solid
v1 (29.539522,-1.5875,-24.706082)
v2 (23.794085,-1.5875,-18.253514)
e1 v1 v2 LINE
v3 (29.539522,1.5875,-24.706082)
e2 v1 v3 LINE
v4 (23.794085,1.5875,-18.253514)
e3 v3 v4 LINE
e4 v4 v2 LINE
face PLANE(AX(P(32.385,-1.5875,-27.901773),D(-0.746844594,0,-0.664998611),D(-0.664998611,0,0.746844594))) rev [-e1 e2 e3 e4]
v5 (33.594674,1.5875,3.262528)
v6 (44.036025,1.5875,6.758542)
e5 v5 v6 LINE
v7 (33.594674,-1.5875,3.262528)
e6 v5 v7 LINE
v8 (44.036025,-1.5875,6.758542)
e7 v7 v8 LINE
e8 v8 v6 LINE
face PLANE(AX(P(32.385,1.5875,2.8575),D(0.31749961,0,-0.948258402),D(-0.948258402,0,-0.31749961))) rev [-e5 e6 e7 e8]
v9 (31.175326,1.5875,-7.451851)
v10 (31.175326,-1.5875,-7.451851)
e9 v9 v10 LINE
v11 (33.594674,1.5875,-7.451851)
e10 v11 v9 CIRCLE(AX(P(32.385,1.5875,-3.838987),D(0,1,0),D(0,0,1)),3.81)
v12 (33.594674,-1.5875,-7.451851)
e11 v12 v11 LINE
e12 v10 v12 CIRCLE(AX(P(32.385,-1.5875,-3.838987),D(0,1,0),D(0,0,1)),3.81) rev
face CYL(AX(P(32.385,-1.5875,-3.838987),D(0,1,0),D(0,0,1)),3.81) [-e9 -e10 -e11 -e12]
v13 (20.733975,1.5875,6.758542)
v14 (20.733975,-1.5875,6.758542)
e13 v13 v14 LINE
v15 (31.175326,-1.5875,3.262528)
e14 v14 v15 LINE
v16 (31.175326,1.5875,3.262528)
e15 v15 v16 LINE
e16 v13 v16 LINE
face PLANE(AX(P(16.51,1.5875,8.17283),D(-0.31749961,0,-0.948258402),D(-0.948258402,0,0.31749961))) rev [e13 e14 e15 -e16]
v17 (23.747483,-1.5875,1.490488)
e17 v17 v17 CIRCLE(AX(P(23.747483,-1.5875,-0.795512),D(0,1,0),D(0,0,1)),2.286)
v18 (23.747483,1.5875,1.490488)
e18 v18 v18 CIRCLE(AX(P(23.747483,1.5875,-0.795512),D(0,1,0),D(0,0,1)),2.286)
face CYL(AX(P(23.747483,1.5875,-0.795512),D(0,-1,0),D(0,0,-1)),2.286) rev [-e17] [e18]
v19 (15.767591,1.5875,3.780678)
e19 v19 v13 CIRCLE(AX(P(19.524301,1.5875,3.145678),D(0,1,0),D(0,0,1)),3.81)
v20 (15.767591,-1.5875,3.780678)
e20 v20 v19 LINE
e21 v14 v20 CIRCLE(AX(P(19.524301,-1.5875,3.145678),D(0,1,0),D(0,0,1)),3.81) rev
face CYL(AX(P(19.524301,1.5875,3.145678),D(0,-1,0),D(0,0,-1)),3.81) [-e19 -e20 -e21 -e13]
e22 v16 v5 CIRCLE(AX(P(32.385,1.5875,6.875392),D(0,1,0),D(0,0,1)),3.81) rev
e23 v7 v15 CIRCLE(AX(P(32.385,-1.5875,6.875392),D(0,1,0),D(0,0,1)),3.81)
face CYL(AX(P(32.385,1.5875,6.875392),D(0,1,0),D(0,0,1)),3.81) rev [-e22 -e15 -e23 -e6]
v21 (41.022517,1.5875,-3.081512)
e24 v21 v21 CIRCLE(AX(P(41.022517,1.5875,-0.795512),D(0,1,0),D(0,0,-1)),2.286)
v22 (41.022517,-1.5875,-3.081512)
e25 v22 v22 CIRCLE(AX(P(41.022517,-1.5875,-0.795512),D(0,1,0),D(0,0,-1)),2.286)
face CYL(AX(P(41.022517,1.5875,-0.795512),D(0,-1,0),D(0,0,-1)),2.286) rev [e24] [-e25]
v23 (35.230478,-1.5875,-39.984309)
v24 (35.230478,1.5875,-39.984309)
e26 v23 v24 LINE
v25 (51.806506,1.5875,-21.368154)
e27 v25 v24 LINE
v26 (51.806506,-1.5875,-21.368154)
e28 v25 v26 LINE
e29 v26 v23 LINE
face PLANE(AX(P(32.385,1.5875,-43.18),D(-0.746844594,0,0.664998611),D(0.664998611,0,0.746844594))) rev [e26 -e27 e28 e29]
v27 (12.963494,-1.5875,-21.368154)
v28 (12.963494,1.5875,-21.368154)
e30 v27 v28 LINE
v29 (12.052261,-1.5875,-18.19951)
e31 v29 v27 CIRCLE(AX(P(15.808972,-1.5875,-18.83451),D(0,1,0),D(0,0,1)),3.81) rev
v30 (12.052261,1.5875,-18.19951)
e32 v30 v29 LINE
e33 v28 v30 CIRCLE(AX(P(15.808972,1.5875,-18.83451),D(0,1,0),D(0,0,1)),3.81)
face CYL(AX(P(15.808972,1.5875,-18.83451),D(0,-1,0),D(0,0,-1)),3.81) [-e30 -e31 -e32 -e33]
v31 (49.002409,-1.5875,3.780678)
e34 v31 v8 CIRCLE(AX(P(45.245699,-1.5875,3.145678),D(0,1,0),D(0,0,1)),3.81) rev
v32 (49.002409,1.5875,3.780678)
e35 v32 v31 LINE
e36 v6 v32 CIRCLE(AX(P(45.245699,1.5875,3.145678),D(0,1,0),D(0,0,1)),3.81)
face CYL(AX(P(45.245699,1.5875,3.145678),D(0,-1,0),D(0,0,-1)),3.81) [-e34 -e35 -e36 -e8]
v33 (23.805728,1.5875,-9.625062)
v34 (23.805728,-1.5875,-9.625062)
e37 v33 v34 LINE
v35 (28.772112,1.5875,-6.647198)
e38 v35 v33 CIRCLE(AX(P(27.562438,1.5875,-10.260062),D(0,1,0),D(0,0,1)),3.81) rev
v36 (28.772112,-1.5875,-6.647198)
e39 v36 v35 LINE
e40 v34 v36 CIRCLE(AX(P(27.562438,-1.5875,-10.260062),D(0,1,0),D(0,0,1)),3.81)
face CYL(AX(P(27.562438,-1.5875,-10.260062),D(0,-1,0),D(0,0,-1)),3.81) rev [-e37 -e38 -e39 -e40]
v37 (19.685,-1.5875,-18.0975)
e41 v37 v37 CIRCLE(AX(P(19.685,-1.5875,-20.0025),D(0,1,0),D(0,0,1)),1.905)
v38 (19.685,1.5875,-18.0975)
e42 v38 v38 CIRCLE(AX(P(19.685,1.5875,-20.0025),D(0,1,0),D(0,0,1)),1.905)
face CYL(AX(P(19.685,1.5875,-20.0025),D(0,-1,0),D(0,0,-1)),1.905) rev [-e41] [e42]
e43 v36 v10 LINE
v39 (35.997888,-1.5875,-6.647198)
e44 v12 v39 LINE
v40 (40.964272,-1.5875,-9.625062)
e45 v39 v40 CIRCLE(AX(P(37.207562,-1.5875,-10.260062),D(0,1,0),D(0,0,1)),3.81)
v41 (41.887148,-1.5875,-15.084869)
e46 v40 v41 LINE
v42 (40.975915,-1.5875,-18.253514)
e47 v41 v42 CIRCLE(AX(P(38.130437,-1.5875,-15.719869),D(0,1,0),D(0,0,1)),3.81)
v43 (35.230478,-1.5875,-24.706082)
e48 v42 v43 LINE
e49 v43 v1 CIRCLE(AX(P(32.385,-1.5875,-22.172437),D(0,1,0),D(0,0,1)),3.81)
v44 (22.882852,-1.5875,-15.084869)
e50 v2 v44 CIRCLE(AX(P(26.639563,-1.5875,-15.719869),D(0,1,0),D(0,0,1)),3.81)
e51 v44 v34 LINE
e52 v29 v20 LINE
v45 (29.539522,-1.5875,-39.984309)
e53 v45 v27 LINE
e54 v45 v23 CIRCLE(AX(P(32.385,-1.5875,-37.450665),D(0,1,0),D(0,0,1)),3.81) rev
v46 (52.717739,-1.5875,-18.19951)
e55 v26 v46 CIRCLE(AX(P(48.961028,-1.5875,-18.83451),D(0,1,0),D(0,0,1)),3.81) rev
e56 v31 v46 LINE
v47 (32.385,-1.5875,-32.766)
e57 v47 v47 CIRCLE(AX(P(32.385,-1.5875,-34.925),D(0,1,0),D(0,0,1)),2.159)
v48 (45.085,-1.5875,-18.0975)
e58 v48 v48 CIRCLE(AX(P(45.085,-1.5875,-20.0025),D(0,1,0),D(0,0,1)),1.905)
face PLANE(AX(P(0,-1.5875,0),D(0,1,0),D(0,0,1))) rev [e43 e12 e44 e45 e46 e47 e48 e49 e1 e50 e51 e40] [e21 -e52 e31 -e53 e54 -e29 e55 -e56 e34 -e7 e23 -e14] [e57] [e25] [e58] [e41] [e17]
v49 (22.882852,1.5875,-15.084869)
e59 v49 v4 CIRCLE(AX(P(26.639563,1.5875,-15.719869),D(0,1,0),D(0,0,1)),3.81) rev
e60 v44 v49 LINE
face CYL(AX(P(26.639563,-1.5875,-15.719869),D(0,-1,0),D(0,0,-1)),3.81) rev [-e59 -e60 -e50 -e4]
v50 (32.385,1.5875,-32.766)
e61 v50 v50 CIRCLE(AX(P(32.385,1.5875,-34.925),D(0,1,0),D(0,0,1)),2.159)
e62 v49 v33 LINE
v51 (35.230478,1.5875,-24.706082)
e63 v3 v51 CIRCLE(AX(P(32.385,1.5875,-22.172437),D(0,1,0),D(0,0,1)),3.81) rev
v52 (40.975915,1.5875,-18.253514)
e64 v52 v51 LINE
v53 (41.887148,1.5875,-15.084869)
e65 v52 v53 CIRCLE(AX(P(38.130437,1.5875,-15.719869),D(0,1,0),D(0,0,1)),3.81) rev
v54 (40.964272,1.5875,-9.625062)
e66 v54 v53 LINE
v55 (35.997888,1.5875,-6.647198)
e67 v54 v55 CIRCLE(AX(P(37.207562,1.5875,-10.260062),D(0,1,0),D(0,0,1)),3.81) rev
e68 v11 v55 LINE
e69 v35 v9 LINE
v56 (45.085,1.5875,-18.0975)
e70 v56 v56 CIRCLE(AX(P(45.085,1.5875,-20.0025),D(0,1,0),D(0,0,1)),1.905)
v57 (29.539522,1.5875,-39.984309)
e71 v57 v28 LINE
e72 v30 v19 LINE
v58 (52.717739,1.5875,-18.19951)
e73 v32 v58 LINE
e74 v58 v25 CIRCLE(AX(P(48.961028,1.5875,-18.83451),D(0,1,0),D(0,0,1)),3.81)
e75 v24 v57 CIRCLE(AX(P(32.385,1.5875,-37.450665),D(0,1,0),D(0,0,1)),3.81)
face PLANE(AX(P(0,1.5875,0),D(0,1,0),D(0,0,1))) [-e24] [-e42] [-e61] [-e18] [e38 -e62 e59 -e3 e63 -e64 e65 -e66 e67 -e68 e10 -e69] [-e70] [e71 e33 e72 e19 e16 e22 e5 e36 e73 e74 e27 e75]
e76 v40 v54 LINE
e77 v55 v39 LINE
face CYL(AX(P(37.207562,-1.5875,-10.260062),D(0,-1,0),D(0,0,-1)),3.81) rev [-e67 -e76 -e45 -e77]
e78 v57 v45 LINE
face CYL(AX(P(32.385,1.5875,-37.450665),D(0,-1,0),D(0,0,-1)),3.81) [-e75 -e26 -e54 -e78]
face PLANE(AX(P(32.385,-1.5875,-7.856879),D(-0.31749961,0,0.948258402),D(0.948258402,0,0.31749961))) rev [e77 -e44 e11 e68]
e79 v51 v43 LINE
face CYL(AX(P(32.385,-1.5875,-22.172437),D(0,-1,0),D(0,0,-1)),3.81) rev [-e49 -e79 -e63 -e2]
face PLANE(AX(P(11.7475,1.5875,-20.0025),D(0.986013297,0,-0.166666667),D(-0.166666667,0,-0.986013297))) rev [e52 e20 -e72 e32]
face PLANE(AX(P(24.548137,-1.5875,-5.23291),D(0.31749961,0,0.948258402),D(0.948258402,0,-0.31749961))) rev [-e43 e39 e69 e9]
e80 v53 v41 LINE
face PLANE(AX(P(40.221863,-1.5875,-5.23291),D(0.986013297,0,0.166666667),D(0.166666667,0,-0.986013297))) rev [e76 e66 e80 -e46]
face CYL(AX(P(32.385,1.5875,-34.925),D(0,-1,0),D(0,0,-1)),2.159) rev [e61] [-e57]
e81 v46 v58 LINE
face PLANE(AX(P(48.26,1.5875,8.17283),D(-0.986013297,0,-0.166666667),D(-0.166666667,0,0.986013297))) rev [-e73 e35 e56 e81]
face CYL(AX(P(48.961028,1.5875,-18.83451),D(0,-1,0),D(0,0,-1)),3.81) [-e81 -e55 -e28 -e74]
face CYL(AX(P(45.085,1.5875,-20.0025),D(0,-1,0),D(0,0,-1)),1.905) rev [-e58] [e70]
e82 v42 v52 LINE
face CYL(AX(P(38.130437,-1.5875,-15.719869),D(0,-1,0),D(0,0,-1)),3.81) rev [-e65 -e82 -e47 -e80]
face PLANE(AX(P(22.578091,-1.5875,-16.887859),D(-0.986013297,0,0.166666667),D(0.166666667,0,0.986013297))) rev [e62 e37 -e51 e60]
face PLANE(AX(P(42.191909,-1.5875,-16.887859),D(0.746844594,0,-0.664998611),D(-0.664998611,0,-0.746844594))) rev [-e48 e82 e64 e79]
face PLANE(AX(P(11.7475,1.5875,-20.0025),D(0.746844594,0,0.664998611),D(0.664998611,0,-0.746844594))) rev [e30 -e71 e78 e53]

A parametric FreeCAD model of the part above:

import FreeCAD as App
import Part
import Sketcher
from FreeCAD import Vector
Q = App.Units.Quantity


def edges_at(feature, points):
    """Names of the edges that pass closest to the given points."""
    edges = feature.Shape.Edges
    near = lambda p: min(range(len(edges)), key=lambda i: edges[i].distToShape(Part.Vertex(*p))[0])
    return sorted({f"Edge{near(p) + 1}" for p in points})


def add_polygon(sketch, points):
    """Adds a closed chain of lines whose ends are joined by coincident constraints."""
    first, n = sketch.GeometryCount, len(points)
    for a, b in zip(points, points[1:] + points[:1]):
        sketch.addGeometry(Part.LineSegment(App.Vector(*a, 0), App.Vector(*b, 0)), False)
    for i in range(n):
        sketch.addConstraint(Sketcher.Constraint("Coincident", first + i, 2, first + (i + 1) % n, 1))

doc = App.newDocument("Part")
params = doc.addObject("Spreadsheet::Sheet", "Params")
for row, (alias, value) in enumerate([
    ("sketch1_length", "1.125 in"),
    ("pad1_length", "0.125 in"),
    ("sketch2_diameter", "0.15 in"),
    ("sketch2_diameter2", "0.17 in"),
    ("sketch2_diameter3", "0.18 in"),
    ("fillet_radius", "0.15 in"),
], start=1):
    params.set(f"A{row}", alias)
    params.set(f"B{row}", "=" + value)
    params.setAlias(f"B{row}", alias)

body = doc.addObject("PartDesign::Body", "Body")

# Sketch on XZ plane
sketch1 = doc.addObject("Sketcher::SketchObject", "Sketch")
body.addObject(sketch1)
sketch1.AttachmentSupport = (doc.XZ_Plane, [""])
sketch1.MapMode = "FlatFace"
add_polygon(sketch1, [(32, -43), (12, -20), (17, 8), (32, 3), (48, 8), (53, -20)])  # lines 0-5
sketch1.addConstraint(Sketcher.Constraint("Horizontal", 1, 2, 3, 2))
sketch1.addConstraint(Sketcher.Constraint("Horizontal", 0, 2, 4, 2))
sketch1.addConstraint(Sketcher.Constraint("Vertical", 2, 2, 5, 2))
sketch1.addConstraint(Sketcher.Constraint("Equal", 2, 3))
sketch1.addConstraint(Sketcher.Constraint("Equal", 1, 4))
sketch1.addConstraint(Sketcher.Constraint("DistanceX", -1, 1, 3, 2, Q("1.9 in")))
sketch1.addConstraint(Sketcher.Constraint("DistanceY", 5, 2, -1, 1, Q("1.7 in")))
sketch1.addConstraint(Sketcher.Constraint("DistanceY", 0, 2, 2, 2, Q("0.9 in")))
sketch1.addConstraint(Sketcher.Constraint("DistanceX", -1, 1, 1, 2, Q("0.65 in")))
sketch1.addConstraint(Sketcher.Constraint("Distance", 1, Q("1.125 in")))
sketch1.addConstraint(Sketcher.Constraint("DistanceX", 0, 2, 1, 2, Q("0.1875 in")))
sketch1.addConstraint(Sketcher.Constraint("DistanceY", 5, 2, 2, 2, Q("1.8125 in")))
sketch1.setExpression("Constraints[15]", "Params.sketch1_length")
pad1 = doc.addObject("PartDesign::Pad", "Pad")
body.addObject(pad1)
pad1.Profile = sketch1
pad1.setExpression("Length", "Params.pad1_length")
pad1.Midplane = True

# Sketch on XZ plane
sketch2 = doc.addObject("Sketcher::SketchObject", "Sketch001")
body.addObject(sketch2)
sketch2.AttachmentSupport = (doc.XZ_Plane, [""])
sketch2.MapMode = "FlatFace"
sketch2.AttachmentOffset = App.Placement(Vector(0, 0, 0.0625 * 25.4), App.Rotation())
sketch2.addGeometry(Part.Circle(Vector(19.7, -20, 0), Vector(0, 0, 1), 1.9), False)
sketch2.addGeometry(Part.Circle(Vector(45.1, -20, 0), Vector(0, 0, 1), 1.9), False)
sketch2.addGeometry(Part.Circle(Vector(32.4, -34.9, 0), Vector(0, 0, 1), 2.2), False)
sketch2.addGeometry(Part.Circle(Vector(23.7, -0.8, 0), Vector(0, 0, 1), 2.3), False)
sketch2.addGeometry(Part.Circle(Vector(41, -0.8, 0), Vector(0, 0, 1), 2.3), False)
sketch2.addConstraint(Sketcher.Constraint("Equal", 0, 1))
sketch2.addConstraint(Sketcher.Constraint("Equal", 3, 4))
sketch2.addConstraint(Sketcher.Constraint("Horizontal", 0, 3, 1, 3))
sketch2.addConstraint(Sketcher.Constraint("Horizontal", 3, 3, 4, 3))
sketch2.addConstraint(Sketcher.Constraint("Diameter", 0, Q("0.15 in")))
sketch2.addConstraint(Sketcher.Constraint("Diameter", 2, Q("0.17 in")))
sketch2.addConstraint(Sketcher.Constraint("Diameter", 3, Q("0.18 in")))
sketch2.addConstraint(Sketcher.Constraint("DistanceX", 0, 3, 1, 3, Q("1 in")))
sketch2.addConstraint(Sketcher.Constraint("DistanceX", 2, 3, 1, 3, Q("0.5 in")))
sketch2.addConstraint(Sketcher.Constraint("DistanceX", -1, 1, 0, 3, Q("0.775 in")))
sketch2.addConstraint(Sketcher.Constraint("DistanceY", 2, 3, -1, 1, Q("1.375 in")))
sketch2.addConstraint(Sketcher.Constraint("DistanceY", 0, 3, -1, 1, Q("0.7875 in")))
sketch2.addConstraint(Sketcher.Constraint("DistanceY", 3, 3, -1, 1, Q("0.795512 mm")))
sketch2.addConstraint(Sketcher.Constraint("DistanceX", -1, 1, 3, 3, Q("23.747483 mm")))
sketch2.addConstraint(Sketcher.Constraint("DistanceX", -1, 1, 4, 3, Q("41.022517 mm")))
sketch2.setExpression("Constraints[4]", "Params.sketch2_diameter")
sketch2.setExpression("Constraints[5]", "Params.sketch2_diameter2")
sketch2.setExpression("Constraints[6]", "Params.sketch2_diameter3")
pocket1 = doc.addObject("PartDesign::Pocket", "Pocket")
body.addObject(pocket1)
pocket1.Profile = sketch2
pocket1.Type = "ThroughAll"

# Sketch on XZ plane
sketch3 = doc.addObject("Sketcher::SketchObject", "Sketch002")
body.addObject(sketch3)
sketch3.AttachmentSupport = (doc.XZ_Plane, [""])
sketch3.MapMode = "FlatFace"
sketch3.AttachmentOffset = App.Placement(Vector(0, 0, -0.0625 * 25.4), App.Rotation())
add_polygon(sketch3, [(23, -17), (25, -5), (32, -8), (40, -5), (42, -17), (32, -28)])  # lines 0-5
sketch3.addConstraint(Sketcher.Constraint("Horizontal", 0, 2, 2, 2))
sketch3.addConstraint(Sketcher.Constraint("Horizontal", 3, 2, 5, 2))
sketch3.addConstraint(Sketcher.Constraint("Vertical", 1, 2, 4, 2))
sketch3.addConstraint(Sketcher.Constraint("Equal", 1, 2))
sketch3.addConstraint(Sketcher.Constraint("Equal", 0, 3))
sketch3.addConstraint(Sketcher.Constraint("DistanceX", -1, 1, 1, 2, Q("1.275 in")))
sketch3.addConstraint(Sketcher.Constraint("Distance", 1, Q("8.26448 mm")))
sketch3.addConstraint(Sketcher.Constraint("DistanceY", 0, 2, -1, 1, Q("5.23291 mm")))
sketch3.addConstraint(Sketcher.Constraint("DistanceY", 1, 2, -1, 1, Q("7.856879 mm")))
sketch3.addConstraint(Sketcher.Constraint("DistanceX", -1, 1, 3, 2, Q("42.191909 mm")))
sketch3.addConstraint(Sketcher.Constraint("DistanceY", 3, 2, -1, 1, Q("16.887859 mm")))
sketch3.addConstraint(Sketcher.Constraint("Distance", 4, Q("14.747262 mm")))
pocket2 = doc.addObject("PartDesign::Pocket", "Pocket001")
body.addObject(pocket2)
pocket2.Profile = sketch3
pocket2.Type = "ThroughAll"
pocket2.Reversed = True
doc.recompute()

fillet = doc.addObject("PartDesign::Fillet", "Fillet")
body.addObject(fillet)
fillet.Base = (pocket2, edges_at(pocket2, [
    (53.023, 0, -20.002),
    (48.26, 0, 8.173),
    (32.385, 0, 2.858),
    (16.51, 0, 8.173),
    (11.748, 0, -20.002),
    (32.385, 0, -43.18),
    (22.578, 0, -16.888),
    (32.385, 0, -27.902),
    (42.192, 0, -16.888),
    (40.222, 0, -5.233),
    (32.385, 0, -7.857),
    (24.548, 0, -5.233),
]))
fillet.setExpression("Radius", "Params.fillet_radius")

doc.recompute()
